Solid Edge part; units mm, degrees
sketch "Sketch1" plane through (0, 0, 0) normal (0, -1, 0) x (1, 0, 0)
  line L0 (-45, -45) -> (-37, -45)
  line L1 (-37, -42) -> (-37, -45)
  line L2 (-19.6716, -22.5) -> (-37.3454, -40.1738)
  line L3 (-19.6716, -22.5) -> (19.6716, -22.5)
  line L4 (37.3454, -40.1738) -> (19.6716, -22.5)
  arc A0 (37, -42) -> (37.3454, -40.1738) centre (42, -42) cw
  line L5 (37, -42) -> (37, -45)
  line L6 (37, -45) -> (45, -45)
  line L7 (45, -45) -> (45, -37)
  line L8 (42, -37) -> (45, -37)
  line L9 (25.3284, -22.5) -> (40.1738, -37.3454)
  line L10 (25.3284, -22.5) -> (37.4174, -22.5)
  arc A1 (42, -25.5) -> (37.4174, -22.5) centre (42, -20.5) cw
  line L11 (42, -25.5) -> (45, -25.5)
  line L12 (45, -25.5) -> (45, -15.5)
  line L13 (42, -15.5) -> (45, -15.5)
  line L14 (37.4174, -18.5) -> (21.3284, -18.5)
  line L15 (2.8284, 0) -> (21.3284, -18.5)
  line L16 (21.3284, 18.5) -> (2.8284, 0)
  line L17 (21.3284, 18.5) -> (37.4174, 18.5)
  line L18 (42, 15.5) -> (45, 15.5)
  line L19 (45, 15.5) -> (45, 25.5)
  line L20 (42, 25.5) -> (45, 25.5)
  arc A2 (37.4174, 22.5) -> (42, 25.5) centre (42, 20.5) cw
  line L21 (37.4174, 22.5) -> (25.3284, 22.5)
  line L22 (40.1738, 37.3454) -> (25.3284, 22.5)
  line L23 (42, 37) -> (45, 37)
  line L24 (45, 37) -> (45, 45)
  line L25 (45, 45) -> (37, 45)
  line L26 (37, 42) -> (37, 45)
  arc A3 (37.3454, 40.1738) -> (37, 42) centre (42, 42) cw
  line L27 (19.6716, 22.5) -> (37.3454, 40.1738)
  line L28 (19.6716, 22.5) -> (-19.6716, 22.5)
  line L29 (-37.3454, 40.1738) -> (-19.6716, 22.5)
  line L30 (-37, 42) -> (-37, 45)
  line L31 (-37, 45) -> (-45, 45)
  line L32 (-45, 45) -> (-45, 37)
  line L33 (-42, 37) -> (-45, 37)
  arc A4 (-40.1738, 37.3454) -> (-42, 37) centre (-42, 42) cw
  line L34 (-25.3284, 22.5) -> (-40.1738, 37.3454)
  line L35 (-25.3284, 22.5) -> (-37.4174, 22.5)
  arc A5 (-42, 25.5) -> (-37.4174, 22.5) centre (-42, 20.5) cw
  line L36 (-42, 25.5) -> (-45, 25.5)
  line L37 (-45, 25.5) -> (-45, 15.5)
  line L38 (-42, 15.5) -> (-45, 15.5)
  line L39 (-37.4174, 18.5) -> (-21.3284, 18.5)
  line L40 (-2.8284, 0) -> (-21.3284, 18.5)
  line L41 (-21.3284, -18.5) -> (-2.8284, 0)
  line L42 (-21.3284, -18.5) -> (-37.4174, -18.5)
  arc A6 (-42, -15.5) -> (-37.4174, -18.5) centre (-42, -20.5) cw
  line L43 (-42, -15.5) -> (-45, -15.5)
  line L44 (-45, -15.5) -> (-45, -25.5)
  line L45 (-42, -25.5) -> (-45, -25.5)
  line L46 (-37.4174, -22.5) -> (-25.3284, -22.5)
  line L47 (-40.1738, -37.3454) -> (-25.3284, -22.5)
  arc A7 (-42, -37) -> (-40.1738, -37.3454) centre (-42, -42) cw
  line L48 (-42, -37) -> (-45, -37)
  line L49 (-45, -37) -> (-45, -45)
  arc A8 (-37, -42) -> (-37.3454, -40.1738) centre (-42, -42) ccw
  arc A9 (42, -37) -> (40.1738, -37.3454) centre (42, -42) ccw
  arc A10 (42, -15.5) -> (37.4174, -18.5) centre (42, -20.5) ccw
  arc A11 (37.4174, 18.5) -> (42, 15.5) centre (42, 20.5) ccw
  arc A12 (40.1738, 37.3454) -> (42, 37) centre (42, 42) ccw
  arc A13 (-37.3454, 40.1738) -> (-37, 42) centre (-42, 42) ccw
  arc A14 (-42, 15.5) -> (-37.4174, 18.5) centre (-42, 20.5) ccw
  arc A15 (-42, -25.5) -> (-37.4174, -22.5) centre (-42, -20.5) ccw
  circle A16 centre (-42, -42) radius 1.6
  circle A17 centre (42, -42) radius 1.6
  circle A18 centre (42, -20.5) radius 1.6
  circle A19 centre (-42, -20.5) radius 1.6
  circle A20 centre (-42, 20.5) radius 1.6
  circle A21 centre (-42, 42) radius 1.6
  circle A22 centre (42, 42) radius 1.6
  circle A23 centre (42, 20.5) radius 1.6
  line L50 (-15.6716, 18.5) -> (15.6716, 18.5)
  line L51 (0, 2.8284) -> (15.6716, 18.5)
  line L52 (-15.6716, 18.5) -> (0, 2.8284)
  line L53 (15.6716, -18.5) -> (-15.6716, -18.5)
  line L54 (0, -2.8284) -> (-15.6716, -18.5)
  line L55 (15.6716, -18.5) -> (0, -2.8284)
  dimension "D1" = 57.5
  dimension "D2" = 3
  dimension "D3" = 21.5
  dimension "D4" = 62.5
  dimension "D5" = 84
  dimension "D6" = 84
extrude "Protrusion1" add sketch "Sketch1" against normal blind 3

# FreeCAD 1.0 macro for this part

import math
import FreeCAD as App
import Part
import Sketcher
Q = App.Units.Quantity


def add_polygon(sketch, points):
    """Adds a closed chain of lines whose ends are joined by coincident constraints."""
    first, n = sketch.GeometryCount, len(points)
    for a, b in zip(points, points[1:] + points[:1]):
        sketch.addGeometry(Part.LineSegment(App.Vector(*a, 0), App.Vector(*b, 0)), False)
    for i in range(n):
        sketch.addConstraint(Sketcher.Constraint("Coincident", first + i, 2, first + (i + 1) % n, 1))

doc = App.newDocument("Part")
body = doc.addObject("PartDesign::Body", "Body")

# Sketch on XZ plane
sketch1 = body.newObject("Sketcher::SketchObject", "Sketch")
sketch1.AttachmentSupport = (doc.getObject("XZ_Plane"), [""])
sketch1.MapMode = "FlatFace"
sketch1.addGeometry(Part.LineSegment(App.Vector(-45, -37, 0), App.Vector(-45, -45, 0)), False)  # 0
sketch1.addGeometry(Part.LineSegment(App.Vector(-45, -45, 0), App.Vector(-37, -45, 0)), False)  # 1
sketch1.addGeometry(Part.LineSegment(App.Vector(-37, -45, 0), App.Vector(-37, -42, 0)), False)  # 2
sketch1.addGeometry(Part.ArcOfCircle(Part.Circle(App.Vector(-42, -42, 0), App.Vector(0, 0, 1), 5), math.radians(0), math.radians(21.422215)), False)  # 3
sketch1.addGeometry(Part.LineSegment(App.Vector(-37.3454, -40.1738, 0), App.Vector(-19.6716, -22.5, 0)), False)  # 4
sketch1.addGeometry(Part.LineSegment(App.Vector(-19.6716, -22.5, 0), App.Vector(19.6716, -22.5, 0)), False)  # 5
sketch1.addGeometry(Part.LineSegment(App.Vector(19.6716, -22.5, 0), App.Vector(37.3454, -40.1738, 0)), False)  # 6
sketch1.addGeometry(Part.ArcOfCircle(Part.Circle(App.Vector(42, -42, 0), App.Vector(0, 0, 1), 5), math.radians(158.577785), math.radians(180)), False)  # 7
sketch1.addGeometry(Part.LineSegment(App.Vector(37, -42, 0), App.Vector(37, -45, 0)), False)  # 8
sketch1.addGeometry(Part.LineSegment(App.Vector(37, -45, 0), App.Vector(45, -45, 0)), False)  # 9
sketch1.addGeometry(Part.LineSegment(App.Vector(45, -45, 0), App.Vector(45, -37, 0)), False)  # 10
sketch1.addGeometry(Part.LineSegment(App.Vector(45, -37, 0), App.Vector(42, -37, 0)), False)  # 11
sketch1.addGeometry(Part.ArcOfCircle(Part.Circle(App.Vector(42, -42, 0), App.Vector(0, 0, 1), 5), math.radians(90), math.radians(111.422215)), False)  # 12
sketch1.addGeometry(Part.LineSegment(App.Vector(40.1738, -37.3454, 0), App.Vector(25.3284, -22.5, 0)), False)  # 13
sketch1.addGeometry(Part.LineSegment(App.Vector(25.3284, -22.5, 0), App.Vector(37.4174, -22.5, 0)), False)  # 14
sketch1.addGeometry(Part.ArcOfCircle(Part.Circle(App.Vector(42, -20.5, 0), App.Vector(0, 0, 1), 5), math.radians(-156.421933), math.radians(-90)), False)  # 15
sketch1.addGeometry(Part.LineSegment(App.Vector(42, -25.5, 0), App.Vector(45, -25.5, 0)), False)  # 16
sketch1.addGeometry(Part.LineSegment(App.Vector(45, -25.5, 0), App.Vector(45, -15.5, 0)), False)  # 17
sketch1.addGeometry(Part.LineSegment(App.Vector(45, -15.5, 0), App.Vector(42, -15.5, 0)), False)  # 18
sketch1.addGeometry(Part.ArcOfCircle(Part.Circle(App.Vector(42, -20.5, 0), App.Vector(0, 0, 1), 5), math.radians(90), math.radians(156.421933)), False)  # 19
sketch1.addGeometry(Part.LineSegment(App.Vector(37.4174, -18.5, 0), App.Vector(21.3284, -18.5, 0)), False)  # 20
sketch1.addGeometry(Part.LineSegment(App.Vector(21.3284, -18.5, 0), App.Vector(2.8284, 0, 0)), False)  # 21
sketch1.addGeometry(Part.LineSegment(App.Vector(2.8284, 0, 0), App.Vector(21.3284, 18.5, 0)), False)  # 22
sketch1.addGeometry(Part.LineSegment(App.Vector(21.3284, 18.5, 0), App.Vector(37.4174, 18.5, 0)), False)  # 23
sketch1.addGeometry(Part.ArcOfCircle(Part.Circle(App.Vector(42, 20.5, 0), App.Vector(0, 0, 1), 5.000022), math.radians(-156.421933), math.radians(-90)), False)  # 24
sketch1.addGeometry(Part.LineSegment(App.Vector(42, 15.5, 0), App.Vector(45, 15.5, 0)), False)  # 25
sketch1.addGeometry(Part.LineSegment(App.Vector(45, 15.5, 0), App.Vector(45, 25.5, 0)), False)  # 26
sketch1.addGeometry(Part.LineSegment(App.Vector(45, 25.5, 0), App.Vector(42, 25.5, 0)), False)  # 27
sketch1.addGeometry(Part.ArcOfCircle(Part.Circle(App.Vector(42, 20.5, 0), App.Vector(0, 0, 1), 5.000022), math.radians(90), math.radians(156.421933)), False)  # 28
sketch1.addGeometry(Part.LineSegment(App.Vector(37.4174, 22.5, 0), App.Vector(25.3284, 22.5, 0)), False)  # 29
sketch1.addGeometry(Part.LineSegment(App.Vector(25.3284, 22.5, 0), App.Vector(40.1738, 37.3454, 0)), False)  # 30
sketch1.addGeometry(Part.ArcOfCircle(Part.Circle(App.Vector(42, 42, 0), App.Vector(0, 0, 1), 5.000031), math.radians(-111.422215), math.radians(-90)), False)  # 31
sketch1.addGeometry(Part.LineSegment(App.Vector(42, 37, 0), App.Vector(45, 37, 0)), False)  # 32
sketch1.addGeometry(Part.LineSegment(App.Vector(45, 37, 0), App.Vector(45, 45, 0)), False)  # 33
sketch1.addGeometry(Part.LineSegment(App.Vector(45, 45, 0), App.Vector(37, 45, 0)), False)  # 34
sketch1.addGeometry(Part.LineSegment(App.Vector(37, 45, 0), App.Vector(37, 42, 0)), False)  # 35
sketch1.addGeometry(Part.ArcOfCircle(Part.Circle(App.Vector(42, 42, 0), App.Vector(0, 0, 1), 5.000031), math.radians(180), math.radians(201.422215)), False)  # 36
sketch1.addGeometry(Part.LineSegment(App.Vector(37.3454, 40.1738, 0), App.Vector(19.6716, 22.5, 0)), False)  # 37
sketch1.addGeometry(Part.LineSegment(App.Vector(19.6716, 22.5, 0), App.Vector(-19.6716, 22.5, 0)), False)  # 38
sketch1.addGeometry(Part.LineSegment(App.Vector(-19.6716, 22.5, 0), App.Vector(-37.3454, 40.1738, 0)), False)  # 39
sketch1.addGeometry(Part.ArcOfCircle(Part.Circle(App.Vector(-42, 42, 0), App.Vector(0, 0, 1), 5.000031), math.radians(-21.422215), math.radians(0)), False)  # 40
sketch1.addGeometry(Part.LineSegment(App.Vector(-37, 42, 0), App.Vector(-37, 45, 0)), False)  # 41
sketch1.addGeometry(Part.LineSegment(App.Vector(-37, 45, 0), App.Vector(-45, 45, 0)), False)  # 42
sketch1.addGeometry(Part.LineSegment(App.Vector(-45, 45, 0), App.Vector(-45, 37, 0)), False)  # 43
sketch1.addGeometry(Part.LineSegment(App.Vector(-45, 37, 0), App.Vector(-42, 37, 0)), False)  # 44
sketch1.addGeometry(Part.ArcOfCircle(Part.Circle(App.Vector(-42, 42, 0), App.Vector(0, 0, 1), 5.000031), math.radians(-90), math.radians(-68.577785)), False)  # 45
sketch1.addGeometry(Part.LineSegment(App.Vector(-40.1738, 37.3454, 0), App.Vector(-25.3284, 22.5, 0)), False)  # 46
sketch1.addGeometry(Part.LineSegment(App.Vector(-25.3284, 22.5, 0), App.Vector(-37.4174, 22.5, 0)), False)  # 47
sketch1.addGeometry(Part.ArcOfCircle(Part.Circle(App.Vector(-42, 20.5, 0), App.Vector(0, 0, 1), 5), math.radians(23.578067), math.radians(90)), False)  # 48
sketch1.addGeometry(Part.LineSegment(App.Vector(-42, 25.5, 0), App.Vector(-45, 25.5, 0)), False)  # 49
sketch1.addGeometry(Part.LineSegment(App.Vector(-45, 25.5, 0), App.Vector(-45, 15.5, 0)), False)  # 50
sketch1.addGeometry(Part.LineSegment(App.Vector(-45, 15.5, 0), App.Vector(-42, 15.5, 0)), False)  # 51
sketch1.addGeometry(Part.ArcOfCircle(Part.Circle(App.Vector(-42, 20.5, 0), App.Vector(0, 0, 1), 5), math.radians(-90), math.radians(-23.578067)), False)  # 52
sketch1.addGeometry(Part.LineSegment(App.Vector(-37.4174, 18.5, 0), App.Vector(-21.3284, 18.5, 0)), False)  # 53
sketch1.addGeometry(Part.LineSegment(App.Vector(-21.3284, 18.5, 0), App.Vector(-2.8284, 0, 0)), False)  # 54
sketch1.addGeometry(Part.LineSegment(App.Vector(-2.8284, 0, 0), App.Vector(-21.3284, -18.5, 0)), False)  # 55
sketch1.addGeometry(Part.LineSegment(App.Vector(-21.3284, -18.5, 0), App.Vector(-37.4174, -18.5, 0)), False)  # 56
sketch1.addGeometry(Part.ArcOfCircle(Part.Circle(App.Vector(-42, -20.5, 0), App.Vector(0, 0, 1), 5), math.radians(23.578067), math.radians(90)), False)  # 57
sketch1.addGeometry(Part.LineSegment(App.Vector(-42, -15.5, 0), App.Vector(-45, -15.5, 0)), False)  # 58
sketch1.addGeometry(Part.LineSegment(App.Vector(-45, -15.5, 0), App.Vector(-45, -25.5, 0)), False)  # 59
sketch1.addGeometry(Part.LineSegment(App.Vector(-45, -25.5, 0), App.Vector(-42, -25.5, 0)), False)  # 60
sketch1.addGeometry(Part.ArcOfCircle(Part.Circle(App.Vector(-42, -20.5, 0), App.Vector(0, 0, 1), 5), math.radians(-90), math.radians(-23.578067)), False)  # 61
sketch1.addGeometry(Part.LineSegment(App.Vector(-37.4174, -22.5, 0), App.Vector(-25.3284, -22.5, 0)), False)  # 62
sketch1.addGeometry(Part.LineSegment(App.Vector(-25.3284, -22.5, 0), App.Vector(-40.1738, -37.3454, 0)), False)  # 63
sketch1.addGeometry(Part.ArcOfCircle(Part.Circle(App.Vector(-42, -42, 0), App.Vector(0, 0, 1), 5), math.radians(68.577785), math.radians(90)), False)  # 64
sketch1.addGeometry(Part.LineSegment(App.Vector(-42, -37, 0), App.Vector(-45, -37, 0)), False)  # 65
sketch1.addGeometry(Part.Circle(App.Vector(-42, -42, 0), App.Vector(0, 0, 1), 1.6), False)  # 66
sketch1.addGeometry(Part.Circle(App.Vector(-42, -20.5, 0), App.Vector(0, 0, 1), 1.6), False)  # 67
sketch1.addGeometry(Part.Circle(App.Vector(42, -42, 0), App.Vector(0, 0, 1), 1.6), False)  # 68
add_polygon(sketch1, [(0, -2.8284), (15.6716, -18.5), (-15.6716, -18.5)])  # lines 69-71
sketch1.addGeometry(Part.Circle(App.Vector(42, -20.5, 0), App.Vector(0, 0, 1), 1.6), False)  # 72
sketch1.addGeometry(Part.Circle(App.Vector(-42, 20.5, 0), App.Vector(0, 0, 1), 1.6), False)  # 73
sketch1.addGeometry(Part.Circle(App.Vector(-42, 42, 0), App.Vector(0, 0, 1), 1.6), False)  # 74
add_polygon(sketch1, [(0, 2.8284), (-15.6716, 18.5), (15.6716, 18.5)])  # lines 75-77
sketch1.addGeometry(Part.Circle(App.Vector(42, 20.5, 0), App.Vector(0, 0, 1), 1.6), False)  # 78
sketch1.addGeometry(Part.Circle(App.Vector(42, 42, 0), App.Vector(0, 0, 1), 1.6), False)  # 79
sketch1.addConstraint(Sketcher.Constraint("Coincident", 0, 2, 1, 1))
sketch1.addConstraint(Sketcher.Constraint("Coincident", 1, 2, 2, 1))
sketch1.addConstraint(Sketcher.Constraint("Tangent", 2, 2, 3, 1))
sketch1.addConstraint(Sketcher.Constraint("Coincident", 3, 2, 4, 1))
sketch1.addConstraint(Sketcher.Constraint("Coincident", 4, 2, 5, 1))
sketch1.addConstraint(Sketcher.Constraint("Coincident", 5, 2, 6, 1))
sketch1.addConstraint(Sketcher.Constraint("Coincident", 6, 2, 7, 1))
sketch1.addConstraint(Sketcher.Constraint("Tangent", 7, 2, 8, 1))
sketch1.addConstraint(Sketcher.Constraint("Coincident", 8, 2, 9, 1))
sketch1.addConstraint(Sketcher.Constraint("Coincident", 9, 2, 10, 1))
sketch1.addConstraint(Sketcher.Constraint("Coincident", 10, 2, 11, 1))
sketch1.addConstraint(Sketcher.Constraint("Tangent", 11, 2, 12, 1))
sketch1.addConstraint(Sketcher.Constraint("Coincident", 12, 2, 13, 1))
sketch1.addConstraint(Sketcher.Constraint("Coincident", 13, 2, 14, 1))
sketch1.addConstraint(Sketcher.Constraint("Coincident", 14, 2, 15, 1))
sketch1.addConstraint(Sketcher.Constraint("Tangent", 15, 2, 16, 1))
sketch1.addConstraint(Sketcher.Constraint("Coincident", 16, 2, 17, 1))
sketch1.addConstraint(Sketcher.Constraint("Coincident", 17, 2, 18, 1))
sketch1.addConstraint(Sketcher.Constraint("Tangent", 18, 2, 19, 1))
sketch1.addConstraint(Sketcher.Constraint("Coincident", 19, 2, 20, 1))
sketch1.addConstraint(Sketcher.Constraint("Coincident", 20, 2, 21, 1))
sketch1.addConstraint(Sketcher.Constraint("Coincident", 21, 2, 22, 1))
sketch1.addConstraint(Sketcher.Constraint("Coincident", 22, 2, 23, 1))
sketch1.addConstraint(Sketcher.Constraint("Coincident", 23, 2, 24, 1))
sketch1.addConstraint(Sketcher.Constraint("Tangent", 24, 2, 25, 1))
sketch1.addConstraint(Sketcher.Constraint("Coincident", 25, 2, 26, 1))
sketch1.addConstraint(Sketcher.Constraint("Coincident", 26, 2, 27, 1))
sketch1.addConstraint(Sketcher.Constraint("Tangent", 27, 2, 28, 1))
sketch1.addConstraint(Sketcher.Constraint("Coincident", 28, 2, 29, 1))
sketch1.addConstraint(Sketcher.Constraint("Coincident", 29, 2, 30, 1))
sketch1.addConstraint(Sketcher.Constraint("Coincident", 30, 2, 31, 1))
sketch1.addConstraint(Sketcher.Constraint("Tangent", 31, 2, 32, 1))
sketch1.addConstraint(Sketcher.Constraint("Coincident", 32, 2, 33, 1))
sketch1.addConstraint(Sketcher.Constraint("Coincident", 33, 2, 34, 1))
sketch1.addConstraint(Sketcher.Constraint("Coincident", 34, 2, 35, 1))
sketch1.addConstraint(Sketcher.Constraint("Tangent", 35, 2, 36, 1))
sketch1.addConstraint(Sketcher.Constraint("Coincident", 36, 2, 37, 1))
sketch1.addConstraint(Sketcher.Constraint("Coincident", 37, 2, 38, 1))
sketch1.addConstraint(Sketcher.Constraint("Coincident", 38, 2, 39, 1))
sketch1.addConstraint(Sketcher.Constraint("Coincident", 39, 2, 40, 1))
sketch1.addConstraint(Sketcher.Constraint("Tangent", 40, 2, 41, 1))
sketch1.addConstraint(Sketcher.Constraint("Coincident", 41, 2, 42, 1))
sketch1.addConstraint(Sketcher.Constraint("Coincident", 42, 2, 43, 1))
sketch1.addConstraint(Sketcher.Constraint("Coincident", 43, 2, 44, 1))
sketch1.addConstraint(Sketcher.Constraint("Tangent", 44, 2, 45, 1))
sketch1.addConstraint(Sketcher.Constraint("Coincident", 45, 2, 46, 1))
sketch1.addConstraint(Sketcher.Constraint("Coincident", 46, 2, 47, 1))
sketch1.addConstraint(Sketcher.Constraint("Coincident", 47, 2, 48, 1))
sketch1.addConstraint(Sketcher.Constraint("Tangent", 48, 2, 49, 1))
sketch1.addConstraint(Sketcher.Constraint("Coincident", 49, 2, 50, 1))
sketch1.addConstraint(Sketcher.Constraint("Coincident", 50, 2, 51, 1))
sketch1.addConstraint(Sketcher.Constraint("Tangent", 51, 2, 52, 1))
sketch1.addConstraint(Sketcher.Constraint("Coincident", 52, 2, 53, 1))
sketch1.addConstraint(Sketcher.Constraint("Coincident", 53, 2, 54, 1))
sketch1.addConstraint(Sketcher.Constraint("Coincident", 54, 2, 55, 1))
sketch1.addConstraint(Sketcher.Constraint("Coincident", 55, 2, 56, 1))
sketch1.addConstraint(Sketcher.Constraint("Coincident", 56, 2, 57, 1))
sketch1.addConstraint(Sketcher.Constraint("Tangent", 57, 2, 58, 1))
sketch1.addConstraint(Sketcher.Constraint("Coincident", 58, 2, 59, 1))
sketch1.addConstraint(Sketcher.Constraint("Coincident", 59, 2, 60, 1))
sketch1.addConstraint(Sketcher.Constraint("Tangent", 60, 2, 61, 1))
sketch1.addConstraint(Sketcher.Constraint("Coincident", 61, 2, 62, 1))
sketch1.addConstraint(Sketcher.Constraint("Coincident", 62, 2, 63, 1))
sketch1.addConstraint(Sketcher.Constraint("Coincident", 63, 2, 64, 1))
sketch1.addConstraint(Sketcher.Constraint("Tangent", 64, 2, 65, 1))
sketch1.addConstraint(Sketcher.Constraint("Coincident", 65, 2, 0, 1))
sketch1.addConstraint(Sketcher.Constraint("Vertical", 0))
sketch1.addConstraint(Sketcher.Constraint("Horizontal", 1))
sketch1.addConstraint(Sketcher.Constraint("Vertical", 2))
sketch1.addConstraint(Sketcher.Constraint("Horizontal", 5))
sketch1.addConstraint(Sketcher.Constraint("Vertical", 8))
sketch1.addConstraint(Sketcher.Constraint("Horizontal", 9))
sketch1.addConstraint(Sketcher.Constraint("Vertical", 10))
sketch1.addConstraint(Sketcher.Constraint("Horizontal", 11))
sketch1.addConstraint(Sketcher.Constraint("Horizontal", 14))
sketch1.addConstraint(Sketcher.Constraint("Horizontal", 16))
sketch1.addConstraint(Sketcher.Constraint("Vertical", 17))
sketch1.addConstraint(Sketcher.Constraint("Horizontal", 18))
sketch1.addConstraint(Sketcher.Constraint("Horizontal", 20))
sketch1.addConstraint(Sketcher.Constraint("Horizontal", 23))
sketch1.addConstraint(Sketcher.Constraint("Horizontal", 25))
sketch1.addConstraint(Sketcher.Constraint("Vertical", 26))
sketch1.addConstraint(Sketcher.Constraint("Horizontal", 27))
sketch1.addConstraint(Sketcher.Constraint("Horizontal", 29))
sketch1.addConstraint(Sketcher.Constraint("Horizontal", 32))
sketch1.addConstraint(Sketcher.Constraint("Vertical", 33))
sketch1.addConstraint(Sketcher.Constraint("Horizontal", 34))
sketch1.addConstraint(Sketcher.Constraint("Vertical", 35))
sketch1.addConstraint(Sketcher.Constraint("Horizontal", 38))
sketch1.addConstraint(Sketcher.Constraint("Vertical", 41))
sketch1.addConstraint(Sketcher.Constraint("Horizontal", 42))
sketch1.addConstraint(Sketcher.Constraint("Vertical", 43))
sketch1.addConstraint(Sketcher.Constraint("Horizontal", 44))
sketch1.addConstraint(Sketcher.Constraint("Horizontal", 47))
sketch1.addConstraint(Sketcher.Constraint("Horizontal", 49))
sketch1.addConstraint(Sketcher.Constraint("Vertical", 50))
sketch1.addConstraint(Sketcher.Constraint("Horizontal", 51))
sketch1.addConstraint(Sketcher.Constraint("Horizontal", 53))
sketch1.addConstraint(Sketcher.Constraint("Horizontal", 56))
sketch1.addConstraint(Sketcher.Constraint("Horizontal", 58))
sketch1.addConstraint(Sketcher.Constraint("Vertical", 59))
sketch1.addConstraint(Sketcher.Constraint("Horizontal", 60))
sketch1.addConstraint(Sketcher.Constraint("Horizontal", 62))
sketch1.addConstraint(Sketcher.Constraint("Horizontal", 65))
sketch1.addConstraint(Sketcher.Constraint("Horizontal", 70))
sketch1.addConstraint(Sketcher.Constraint("Horizontal", 76))
sketch1.addConstraint(Sketcher.Constraint("Coincident", 12, 3, 7, 3))
sketch1.addConstraint(Sketcher.Constraint("Coincident", 19, 3, 15, 3))
sketch1.addConstraint(Sketcher.Constraint("Coincident", 28, 3, 24, 3))
sketch1.addConstraint(Sketcher.Constraint("Coincident", 36, 3, 31, 3))
sketch1.addConstraint(Sketcher.Constraint("Coincident", 45, 3, 40, 3))
sketch1.addConstraint(Sketcher.Constraint("Coincident", 52, 3, 48, 3))
sketch1.addConstraint(Sketcher.Constraint("Coincident", 61, 3, 57, 3))
sketch1.addConstraint(Sketcher.Constraint("Coincident", 64, 3, 3, 3))
sketch1.addConstraint(Sketcher.Constraint("Coincident", 66, 3, 3, 3))
sketch1.addConstraint(Sketcher.Constraint("Coincident", 67, 3, 57, 3))
sketch1.addConstraint(Sketcher.Constraint("Coincident", 68, 3, 7, 3))
sketch1.addConstraint(Sketcher.Constraint("Coincident", 72, 3, 15, 3))
sketch1.addConstraint(Sketcher.Constraint("Coincident", 73, 3, 48, 3))
sketch1.addConstraint(Sketcher.Constraint("Coincident", 74, 3, 40, 3))
sketch1.addConstraint(Sketcher.Constraint("Coincident", 78, 3, 24, 3))
sketch1.addConstraint(Sketcher.Constraint("Coincident", 79, 3, 31, 3))
sketch1.addConstraint(Sketcher.Constraint("Equal", 3, 7))
sketch1.addConstraint(Sketcher.Constraint("Equal", 7, 12))
sketch1.addConstraint(Sketcher.Constraint("Equal", 12, 15))
sketch1.addConstraint(Sketcher.Constraint("Equal", 15, 19))
sketch1.addConstraint(Sketcher.Constraint("Equal", 19, 24))
sketch1.addConstraint(Sketcher.Constraint("Equal", 24, 28))
sketch1.addConstraint(Sketcher.Constraint("Equal", 28, 31))
sketch1.addConstraint(Sketcher.Constraint("Equal", 31, 36))
sketch1.addConstraint(Sketcher.Constraint("Equal", 36, 40))
sketch1.addConstraint(Sketcher.Constraint("Equal", 40, 45))
sketch1.addConstraint(Sketcher.Constraint("Equal", 45, 48))
sketch1.addConstraint(Sketcher.Constraint("Equal", 48, 52))
sketch1.addConstraint(Sketcher.Constraint("Equal", 52, 57))
sketch1.addConstraint(Sketcher.Constraint("Equal", 57, 61))
sketch1.addConstraint(Sketcher.Constraint("Equal", 61, 64))
sketch1.addConstraint(Sketcher.Constraint("Equal", 66, 67))
sketch1.addConstraint(Sketcher.Constraint("Equal", 67, 68))
sketch1.addConstraint(Sketcher.Constraint("Equal", 68, 72))
sketch1.addConstraint(Sketcher.Constraint("Equal", 72, 73))
sketch1.addConstraint(Sketcher.Constraint("Equal", 73, 74))
sketch1.addConstraint(Sketcher.Constraint("Equal", 74, 78))
sketch1.addConstraint(Sketcher.Constraint("Equal", 78, 79))
sketch1.addConstraint(Sketcher.Constraint("Symmetric", 3, 3, 31, 3, -1, 1))
sketch1.addConstraint(Sketcher.Constraint("Symmetric", 7, 3, 40, 3, -1, 1))
sketch1.addConstraint(Sketcher.Constraint("Symmetric", 15, 3, 48, 3, -1, 1))
sketch1.addConstraint(Sketcher.Constraint("Symmetric", 24, 3, 57, 3, -1, 1))
sketch1.addConstraint(Sketcher.Constraint("Symmetric", 0, 2, 33, 2, -1, 1))
sketch1.addConstraint(Sketcher.Constraint("Symmetric", 4, 2, 37, 2, -1, 1))
sketch1.addConstraint(Sketcher.Constraint("Symmetric", 9, 2, 42, 2, -1, 1))
sketch1.addConstraint(Sketcher.Constraint("Symmetric", 13, 2, 46, 2, -1, 1))
sketch1.addConstraint(Sketcher.Constraint("Symmetric", 20, 2, 53, 2, -1, 1))
sketch1.addConstraint(Sketcher.Constraint("Symmetric", 21, 2, 54, 2, -1, 1))
sketch1.addConstraint(Sketcher.Constraint("Symmetric", 22, 2, 55, 2, -1, 1))
sketch1.addConstraint(Sketcher.Constraint("Symmetric", 29, 2, 62, 2, -1, 1))
sketch1.addConstraint(Sketcher.Constraint("Symmetric", 69, 2, 75, 2, -1, 1))
sketch1.addConstraint(Sketcher.Constraint("Symmetric", 71, 2, 77, 2, -1, 1))
sketch1.addConstraint(Sketcher.Constraint("Symmetric", 3, 3, 7, 3, -2))
sketch1.addConstraint(Sketcher.Constraint("Symmetric", 24, 3, 48, 3, -2))
sketch1.addConstraint(Sketcher.Constraint("Symmetric", 0, 2, 9, 2, -2))
sketch1.addConstraint(Sketcher.Constraint("Symmetric", 29, 2, 46, 2, -2))
sketch1.addConstraint(Sketcher.Constraint("Symmetric", 22, 2, 53, 2, -2))
sketch1.addConstraint(Sketcher.Constraint("PointOnObject", 21, 2, -1))
sketch1.addConstraint(Sketcher.Constraint("PointOnObject", 71, 2, -2))
sketch1.addConstraint(Sketcher.Constraint("Perpendicular", 4, 6))
sketch1.addConstraint(Sketcher.Constraint("Parallel", 6, 13))
sketch1.addConstraint(Sketcher.Constraint("Parallel", 13, 21))
sketch1.addConstraint(Sketcher.Constraint("Perpendicular", 21, 22))
sketch1.addConstraint(Sketcher.Constraint("Parallel", 22, 30))
sketch1.addConstraint(Sketcher.Constraint("Parallel", 30, 37))
sketch1.addConstraint(Sketcher.Constraint("Perpendicular", 37, 39))
sketch1.addConstraint(Sketcher.Constraint("Parallel", 39, 46))
sketch1.addConstraint(Sketcher.Constraint("Parallel", 55, 63))
sketch1.addConstraint(Sketcher.Constraint("Perpendicular", 63, 69))
sketch1.addConstraint(Sketcher.Constraint("Perpendicular", 69, 71))
sketch1.addConstraint(Sketcher.Constraint("Perpendicular", 75, 77))
sketch1.addConstraint(Sketcher.Constraint("Horizontal", 3, 2, 6, 2))
sketch1.addConstraint(Sketcher.Constraint("Horizontal", 5, 2, 13, 2))
sketch1.addConstraint(Sketcher.Constraint("Horizontal", 36, 2, 39, 2))
sketch1.addConstraint(Sketcher.Constraint("Horizontal", 56, 2, 69, 2))
sketch1.addConstraint(Sketcher.Constraint("Vertical", 12, 3, 15, 3))
sketch1.addConstraint(Sketcher.Constraint("Vertical", 10, 2, 16, 2))
sketch1.addConstraint(Sketcher.Constraint("Vertical", 14, 2, 19, 2))
sketch1.addConstraint(Sketcher.Constraint("Vertical", 17, 2, 25, 2))
sketch1.addConstraint(Sketcher.Constraint("Vertical", 43, 2, 49, 2))
sketch1.addConstraint(Sketcher.Constraint("Vertical", 50, 2, 58, 2))
sketch1.addConstraint(Sketcher.Constraint("Equal", 42, 0))
sketch1.addConstraint(Sketcher.Constraint("DistanceX", 3, 3, -1, 1, Q("42 mm")))
sketch1.addConstraint(Sketcher.Constraint("DistanceY", 3, 3, -1, 1, Q("42 mm")))
sketch1.addConstraint(Sketcher.Constraint("Radius", 3, Q("5 mm")))
sketch1.addConstraint(Sketcher.Constraint("Diameter", 66, Q("3.2 mm")))
sketch1.addConstraint(Sketcher.Constraint("DistanceX", 1, 1, 1, 2, Q("8 mm")))
sketch1.addConstraint(Sketcher.Constraint("DistanceY", 15, 3, -1, 1, Q("20.5 mm")))
sketch1.addConstraint(Sketcher.Constraint("DistanceY", 4, 2, -1, 1, Q("22.5 mm")))
sketch1.addConstraint(Sketcher.Constraint("DistanceX", 14, 1, 14, 2, Q("12.089 mm")))
sketch1.addConstraint(Sketcher.Constraint("DistanceX", 20, 2, 20, 1, Q("16.089 mm")))
sketch1.addConstraint(Sketcher.Constraint("Distance", 69, Q("22.163 mm")))
sketch1.addConstraint(Sketcher.Constraint("DistanceX", 5, 1, 5, 2, Q("39.3432 mm")))
pad1 = body.newObject("PartDesign::Pad", "Pad")
pad1.Profile = sketch1
pad1.Length = 3
pad1.Reversed = True

doc.recompute()
